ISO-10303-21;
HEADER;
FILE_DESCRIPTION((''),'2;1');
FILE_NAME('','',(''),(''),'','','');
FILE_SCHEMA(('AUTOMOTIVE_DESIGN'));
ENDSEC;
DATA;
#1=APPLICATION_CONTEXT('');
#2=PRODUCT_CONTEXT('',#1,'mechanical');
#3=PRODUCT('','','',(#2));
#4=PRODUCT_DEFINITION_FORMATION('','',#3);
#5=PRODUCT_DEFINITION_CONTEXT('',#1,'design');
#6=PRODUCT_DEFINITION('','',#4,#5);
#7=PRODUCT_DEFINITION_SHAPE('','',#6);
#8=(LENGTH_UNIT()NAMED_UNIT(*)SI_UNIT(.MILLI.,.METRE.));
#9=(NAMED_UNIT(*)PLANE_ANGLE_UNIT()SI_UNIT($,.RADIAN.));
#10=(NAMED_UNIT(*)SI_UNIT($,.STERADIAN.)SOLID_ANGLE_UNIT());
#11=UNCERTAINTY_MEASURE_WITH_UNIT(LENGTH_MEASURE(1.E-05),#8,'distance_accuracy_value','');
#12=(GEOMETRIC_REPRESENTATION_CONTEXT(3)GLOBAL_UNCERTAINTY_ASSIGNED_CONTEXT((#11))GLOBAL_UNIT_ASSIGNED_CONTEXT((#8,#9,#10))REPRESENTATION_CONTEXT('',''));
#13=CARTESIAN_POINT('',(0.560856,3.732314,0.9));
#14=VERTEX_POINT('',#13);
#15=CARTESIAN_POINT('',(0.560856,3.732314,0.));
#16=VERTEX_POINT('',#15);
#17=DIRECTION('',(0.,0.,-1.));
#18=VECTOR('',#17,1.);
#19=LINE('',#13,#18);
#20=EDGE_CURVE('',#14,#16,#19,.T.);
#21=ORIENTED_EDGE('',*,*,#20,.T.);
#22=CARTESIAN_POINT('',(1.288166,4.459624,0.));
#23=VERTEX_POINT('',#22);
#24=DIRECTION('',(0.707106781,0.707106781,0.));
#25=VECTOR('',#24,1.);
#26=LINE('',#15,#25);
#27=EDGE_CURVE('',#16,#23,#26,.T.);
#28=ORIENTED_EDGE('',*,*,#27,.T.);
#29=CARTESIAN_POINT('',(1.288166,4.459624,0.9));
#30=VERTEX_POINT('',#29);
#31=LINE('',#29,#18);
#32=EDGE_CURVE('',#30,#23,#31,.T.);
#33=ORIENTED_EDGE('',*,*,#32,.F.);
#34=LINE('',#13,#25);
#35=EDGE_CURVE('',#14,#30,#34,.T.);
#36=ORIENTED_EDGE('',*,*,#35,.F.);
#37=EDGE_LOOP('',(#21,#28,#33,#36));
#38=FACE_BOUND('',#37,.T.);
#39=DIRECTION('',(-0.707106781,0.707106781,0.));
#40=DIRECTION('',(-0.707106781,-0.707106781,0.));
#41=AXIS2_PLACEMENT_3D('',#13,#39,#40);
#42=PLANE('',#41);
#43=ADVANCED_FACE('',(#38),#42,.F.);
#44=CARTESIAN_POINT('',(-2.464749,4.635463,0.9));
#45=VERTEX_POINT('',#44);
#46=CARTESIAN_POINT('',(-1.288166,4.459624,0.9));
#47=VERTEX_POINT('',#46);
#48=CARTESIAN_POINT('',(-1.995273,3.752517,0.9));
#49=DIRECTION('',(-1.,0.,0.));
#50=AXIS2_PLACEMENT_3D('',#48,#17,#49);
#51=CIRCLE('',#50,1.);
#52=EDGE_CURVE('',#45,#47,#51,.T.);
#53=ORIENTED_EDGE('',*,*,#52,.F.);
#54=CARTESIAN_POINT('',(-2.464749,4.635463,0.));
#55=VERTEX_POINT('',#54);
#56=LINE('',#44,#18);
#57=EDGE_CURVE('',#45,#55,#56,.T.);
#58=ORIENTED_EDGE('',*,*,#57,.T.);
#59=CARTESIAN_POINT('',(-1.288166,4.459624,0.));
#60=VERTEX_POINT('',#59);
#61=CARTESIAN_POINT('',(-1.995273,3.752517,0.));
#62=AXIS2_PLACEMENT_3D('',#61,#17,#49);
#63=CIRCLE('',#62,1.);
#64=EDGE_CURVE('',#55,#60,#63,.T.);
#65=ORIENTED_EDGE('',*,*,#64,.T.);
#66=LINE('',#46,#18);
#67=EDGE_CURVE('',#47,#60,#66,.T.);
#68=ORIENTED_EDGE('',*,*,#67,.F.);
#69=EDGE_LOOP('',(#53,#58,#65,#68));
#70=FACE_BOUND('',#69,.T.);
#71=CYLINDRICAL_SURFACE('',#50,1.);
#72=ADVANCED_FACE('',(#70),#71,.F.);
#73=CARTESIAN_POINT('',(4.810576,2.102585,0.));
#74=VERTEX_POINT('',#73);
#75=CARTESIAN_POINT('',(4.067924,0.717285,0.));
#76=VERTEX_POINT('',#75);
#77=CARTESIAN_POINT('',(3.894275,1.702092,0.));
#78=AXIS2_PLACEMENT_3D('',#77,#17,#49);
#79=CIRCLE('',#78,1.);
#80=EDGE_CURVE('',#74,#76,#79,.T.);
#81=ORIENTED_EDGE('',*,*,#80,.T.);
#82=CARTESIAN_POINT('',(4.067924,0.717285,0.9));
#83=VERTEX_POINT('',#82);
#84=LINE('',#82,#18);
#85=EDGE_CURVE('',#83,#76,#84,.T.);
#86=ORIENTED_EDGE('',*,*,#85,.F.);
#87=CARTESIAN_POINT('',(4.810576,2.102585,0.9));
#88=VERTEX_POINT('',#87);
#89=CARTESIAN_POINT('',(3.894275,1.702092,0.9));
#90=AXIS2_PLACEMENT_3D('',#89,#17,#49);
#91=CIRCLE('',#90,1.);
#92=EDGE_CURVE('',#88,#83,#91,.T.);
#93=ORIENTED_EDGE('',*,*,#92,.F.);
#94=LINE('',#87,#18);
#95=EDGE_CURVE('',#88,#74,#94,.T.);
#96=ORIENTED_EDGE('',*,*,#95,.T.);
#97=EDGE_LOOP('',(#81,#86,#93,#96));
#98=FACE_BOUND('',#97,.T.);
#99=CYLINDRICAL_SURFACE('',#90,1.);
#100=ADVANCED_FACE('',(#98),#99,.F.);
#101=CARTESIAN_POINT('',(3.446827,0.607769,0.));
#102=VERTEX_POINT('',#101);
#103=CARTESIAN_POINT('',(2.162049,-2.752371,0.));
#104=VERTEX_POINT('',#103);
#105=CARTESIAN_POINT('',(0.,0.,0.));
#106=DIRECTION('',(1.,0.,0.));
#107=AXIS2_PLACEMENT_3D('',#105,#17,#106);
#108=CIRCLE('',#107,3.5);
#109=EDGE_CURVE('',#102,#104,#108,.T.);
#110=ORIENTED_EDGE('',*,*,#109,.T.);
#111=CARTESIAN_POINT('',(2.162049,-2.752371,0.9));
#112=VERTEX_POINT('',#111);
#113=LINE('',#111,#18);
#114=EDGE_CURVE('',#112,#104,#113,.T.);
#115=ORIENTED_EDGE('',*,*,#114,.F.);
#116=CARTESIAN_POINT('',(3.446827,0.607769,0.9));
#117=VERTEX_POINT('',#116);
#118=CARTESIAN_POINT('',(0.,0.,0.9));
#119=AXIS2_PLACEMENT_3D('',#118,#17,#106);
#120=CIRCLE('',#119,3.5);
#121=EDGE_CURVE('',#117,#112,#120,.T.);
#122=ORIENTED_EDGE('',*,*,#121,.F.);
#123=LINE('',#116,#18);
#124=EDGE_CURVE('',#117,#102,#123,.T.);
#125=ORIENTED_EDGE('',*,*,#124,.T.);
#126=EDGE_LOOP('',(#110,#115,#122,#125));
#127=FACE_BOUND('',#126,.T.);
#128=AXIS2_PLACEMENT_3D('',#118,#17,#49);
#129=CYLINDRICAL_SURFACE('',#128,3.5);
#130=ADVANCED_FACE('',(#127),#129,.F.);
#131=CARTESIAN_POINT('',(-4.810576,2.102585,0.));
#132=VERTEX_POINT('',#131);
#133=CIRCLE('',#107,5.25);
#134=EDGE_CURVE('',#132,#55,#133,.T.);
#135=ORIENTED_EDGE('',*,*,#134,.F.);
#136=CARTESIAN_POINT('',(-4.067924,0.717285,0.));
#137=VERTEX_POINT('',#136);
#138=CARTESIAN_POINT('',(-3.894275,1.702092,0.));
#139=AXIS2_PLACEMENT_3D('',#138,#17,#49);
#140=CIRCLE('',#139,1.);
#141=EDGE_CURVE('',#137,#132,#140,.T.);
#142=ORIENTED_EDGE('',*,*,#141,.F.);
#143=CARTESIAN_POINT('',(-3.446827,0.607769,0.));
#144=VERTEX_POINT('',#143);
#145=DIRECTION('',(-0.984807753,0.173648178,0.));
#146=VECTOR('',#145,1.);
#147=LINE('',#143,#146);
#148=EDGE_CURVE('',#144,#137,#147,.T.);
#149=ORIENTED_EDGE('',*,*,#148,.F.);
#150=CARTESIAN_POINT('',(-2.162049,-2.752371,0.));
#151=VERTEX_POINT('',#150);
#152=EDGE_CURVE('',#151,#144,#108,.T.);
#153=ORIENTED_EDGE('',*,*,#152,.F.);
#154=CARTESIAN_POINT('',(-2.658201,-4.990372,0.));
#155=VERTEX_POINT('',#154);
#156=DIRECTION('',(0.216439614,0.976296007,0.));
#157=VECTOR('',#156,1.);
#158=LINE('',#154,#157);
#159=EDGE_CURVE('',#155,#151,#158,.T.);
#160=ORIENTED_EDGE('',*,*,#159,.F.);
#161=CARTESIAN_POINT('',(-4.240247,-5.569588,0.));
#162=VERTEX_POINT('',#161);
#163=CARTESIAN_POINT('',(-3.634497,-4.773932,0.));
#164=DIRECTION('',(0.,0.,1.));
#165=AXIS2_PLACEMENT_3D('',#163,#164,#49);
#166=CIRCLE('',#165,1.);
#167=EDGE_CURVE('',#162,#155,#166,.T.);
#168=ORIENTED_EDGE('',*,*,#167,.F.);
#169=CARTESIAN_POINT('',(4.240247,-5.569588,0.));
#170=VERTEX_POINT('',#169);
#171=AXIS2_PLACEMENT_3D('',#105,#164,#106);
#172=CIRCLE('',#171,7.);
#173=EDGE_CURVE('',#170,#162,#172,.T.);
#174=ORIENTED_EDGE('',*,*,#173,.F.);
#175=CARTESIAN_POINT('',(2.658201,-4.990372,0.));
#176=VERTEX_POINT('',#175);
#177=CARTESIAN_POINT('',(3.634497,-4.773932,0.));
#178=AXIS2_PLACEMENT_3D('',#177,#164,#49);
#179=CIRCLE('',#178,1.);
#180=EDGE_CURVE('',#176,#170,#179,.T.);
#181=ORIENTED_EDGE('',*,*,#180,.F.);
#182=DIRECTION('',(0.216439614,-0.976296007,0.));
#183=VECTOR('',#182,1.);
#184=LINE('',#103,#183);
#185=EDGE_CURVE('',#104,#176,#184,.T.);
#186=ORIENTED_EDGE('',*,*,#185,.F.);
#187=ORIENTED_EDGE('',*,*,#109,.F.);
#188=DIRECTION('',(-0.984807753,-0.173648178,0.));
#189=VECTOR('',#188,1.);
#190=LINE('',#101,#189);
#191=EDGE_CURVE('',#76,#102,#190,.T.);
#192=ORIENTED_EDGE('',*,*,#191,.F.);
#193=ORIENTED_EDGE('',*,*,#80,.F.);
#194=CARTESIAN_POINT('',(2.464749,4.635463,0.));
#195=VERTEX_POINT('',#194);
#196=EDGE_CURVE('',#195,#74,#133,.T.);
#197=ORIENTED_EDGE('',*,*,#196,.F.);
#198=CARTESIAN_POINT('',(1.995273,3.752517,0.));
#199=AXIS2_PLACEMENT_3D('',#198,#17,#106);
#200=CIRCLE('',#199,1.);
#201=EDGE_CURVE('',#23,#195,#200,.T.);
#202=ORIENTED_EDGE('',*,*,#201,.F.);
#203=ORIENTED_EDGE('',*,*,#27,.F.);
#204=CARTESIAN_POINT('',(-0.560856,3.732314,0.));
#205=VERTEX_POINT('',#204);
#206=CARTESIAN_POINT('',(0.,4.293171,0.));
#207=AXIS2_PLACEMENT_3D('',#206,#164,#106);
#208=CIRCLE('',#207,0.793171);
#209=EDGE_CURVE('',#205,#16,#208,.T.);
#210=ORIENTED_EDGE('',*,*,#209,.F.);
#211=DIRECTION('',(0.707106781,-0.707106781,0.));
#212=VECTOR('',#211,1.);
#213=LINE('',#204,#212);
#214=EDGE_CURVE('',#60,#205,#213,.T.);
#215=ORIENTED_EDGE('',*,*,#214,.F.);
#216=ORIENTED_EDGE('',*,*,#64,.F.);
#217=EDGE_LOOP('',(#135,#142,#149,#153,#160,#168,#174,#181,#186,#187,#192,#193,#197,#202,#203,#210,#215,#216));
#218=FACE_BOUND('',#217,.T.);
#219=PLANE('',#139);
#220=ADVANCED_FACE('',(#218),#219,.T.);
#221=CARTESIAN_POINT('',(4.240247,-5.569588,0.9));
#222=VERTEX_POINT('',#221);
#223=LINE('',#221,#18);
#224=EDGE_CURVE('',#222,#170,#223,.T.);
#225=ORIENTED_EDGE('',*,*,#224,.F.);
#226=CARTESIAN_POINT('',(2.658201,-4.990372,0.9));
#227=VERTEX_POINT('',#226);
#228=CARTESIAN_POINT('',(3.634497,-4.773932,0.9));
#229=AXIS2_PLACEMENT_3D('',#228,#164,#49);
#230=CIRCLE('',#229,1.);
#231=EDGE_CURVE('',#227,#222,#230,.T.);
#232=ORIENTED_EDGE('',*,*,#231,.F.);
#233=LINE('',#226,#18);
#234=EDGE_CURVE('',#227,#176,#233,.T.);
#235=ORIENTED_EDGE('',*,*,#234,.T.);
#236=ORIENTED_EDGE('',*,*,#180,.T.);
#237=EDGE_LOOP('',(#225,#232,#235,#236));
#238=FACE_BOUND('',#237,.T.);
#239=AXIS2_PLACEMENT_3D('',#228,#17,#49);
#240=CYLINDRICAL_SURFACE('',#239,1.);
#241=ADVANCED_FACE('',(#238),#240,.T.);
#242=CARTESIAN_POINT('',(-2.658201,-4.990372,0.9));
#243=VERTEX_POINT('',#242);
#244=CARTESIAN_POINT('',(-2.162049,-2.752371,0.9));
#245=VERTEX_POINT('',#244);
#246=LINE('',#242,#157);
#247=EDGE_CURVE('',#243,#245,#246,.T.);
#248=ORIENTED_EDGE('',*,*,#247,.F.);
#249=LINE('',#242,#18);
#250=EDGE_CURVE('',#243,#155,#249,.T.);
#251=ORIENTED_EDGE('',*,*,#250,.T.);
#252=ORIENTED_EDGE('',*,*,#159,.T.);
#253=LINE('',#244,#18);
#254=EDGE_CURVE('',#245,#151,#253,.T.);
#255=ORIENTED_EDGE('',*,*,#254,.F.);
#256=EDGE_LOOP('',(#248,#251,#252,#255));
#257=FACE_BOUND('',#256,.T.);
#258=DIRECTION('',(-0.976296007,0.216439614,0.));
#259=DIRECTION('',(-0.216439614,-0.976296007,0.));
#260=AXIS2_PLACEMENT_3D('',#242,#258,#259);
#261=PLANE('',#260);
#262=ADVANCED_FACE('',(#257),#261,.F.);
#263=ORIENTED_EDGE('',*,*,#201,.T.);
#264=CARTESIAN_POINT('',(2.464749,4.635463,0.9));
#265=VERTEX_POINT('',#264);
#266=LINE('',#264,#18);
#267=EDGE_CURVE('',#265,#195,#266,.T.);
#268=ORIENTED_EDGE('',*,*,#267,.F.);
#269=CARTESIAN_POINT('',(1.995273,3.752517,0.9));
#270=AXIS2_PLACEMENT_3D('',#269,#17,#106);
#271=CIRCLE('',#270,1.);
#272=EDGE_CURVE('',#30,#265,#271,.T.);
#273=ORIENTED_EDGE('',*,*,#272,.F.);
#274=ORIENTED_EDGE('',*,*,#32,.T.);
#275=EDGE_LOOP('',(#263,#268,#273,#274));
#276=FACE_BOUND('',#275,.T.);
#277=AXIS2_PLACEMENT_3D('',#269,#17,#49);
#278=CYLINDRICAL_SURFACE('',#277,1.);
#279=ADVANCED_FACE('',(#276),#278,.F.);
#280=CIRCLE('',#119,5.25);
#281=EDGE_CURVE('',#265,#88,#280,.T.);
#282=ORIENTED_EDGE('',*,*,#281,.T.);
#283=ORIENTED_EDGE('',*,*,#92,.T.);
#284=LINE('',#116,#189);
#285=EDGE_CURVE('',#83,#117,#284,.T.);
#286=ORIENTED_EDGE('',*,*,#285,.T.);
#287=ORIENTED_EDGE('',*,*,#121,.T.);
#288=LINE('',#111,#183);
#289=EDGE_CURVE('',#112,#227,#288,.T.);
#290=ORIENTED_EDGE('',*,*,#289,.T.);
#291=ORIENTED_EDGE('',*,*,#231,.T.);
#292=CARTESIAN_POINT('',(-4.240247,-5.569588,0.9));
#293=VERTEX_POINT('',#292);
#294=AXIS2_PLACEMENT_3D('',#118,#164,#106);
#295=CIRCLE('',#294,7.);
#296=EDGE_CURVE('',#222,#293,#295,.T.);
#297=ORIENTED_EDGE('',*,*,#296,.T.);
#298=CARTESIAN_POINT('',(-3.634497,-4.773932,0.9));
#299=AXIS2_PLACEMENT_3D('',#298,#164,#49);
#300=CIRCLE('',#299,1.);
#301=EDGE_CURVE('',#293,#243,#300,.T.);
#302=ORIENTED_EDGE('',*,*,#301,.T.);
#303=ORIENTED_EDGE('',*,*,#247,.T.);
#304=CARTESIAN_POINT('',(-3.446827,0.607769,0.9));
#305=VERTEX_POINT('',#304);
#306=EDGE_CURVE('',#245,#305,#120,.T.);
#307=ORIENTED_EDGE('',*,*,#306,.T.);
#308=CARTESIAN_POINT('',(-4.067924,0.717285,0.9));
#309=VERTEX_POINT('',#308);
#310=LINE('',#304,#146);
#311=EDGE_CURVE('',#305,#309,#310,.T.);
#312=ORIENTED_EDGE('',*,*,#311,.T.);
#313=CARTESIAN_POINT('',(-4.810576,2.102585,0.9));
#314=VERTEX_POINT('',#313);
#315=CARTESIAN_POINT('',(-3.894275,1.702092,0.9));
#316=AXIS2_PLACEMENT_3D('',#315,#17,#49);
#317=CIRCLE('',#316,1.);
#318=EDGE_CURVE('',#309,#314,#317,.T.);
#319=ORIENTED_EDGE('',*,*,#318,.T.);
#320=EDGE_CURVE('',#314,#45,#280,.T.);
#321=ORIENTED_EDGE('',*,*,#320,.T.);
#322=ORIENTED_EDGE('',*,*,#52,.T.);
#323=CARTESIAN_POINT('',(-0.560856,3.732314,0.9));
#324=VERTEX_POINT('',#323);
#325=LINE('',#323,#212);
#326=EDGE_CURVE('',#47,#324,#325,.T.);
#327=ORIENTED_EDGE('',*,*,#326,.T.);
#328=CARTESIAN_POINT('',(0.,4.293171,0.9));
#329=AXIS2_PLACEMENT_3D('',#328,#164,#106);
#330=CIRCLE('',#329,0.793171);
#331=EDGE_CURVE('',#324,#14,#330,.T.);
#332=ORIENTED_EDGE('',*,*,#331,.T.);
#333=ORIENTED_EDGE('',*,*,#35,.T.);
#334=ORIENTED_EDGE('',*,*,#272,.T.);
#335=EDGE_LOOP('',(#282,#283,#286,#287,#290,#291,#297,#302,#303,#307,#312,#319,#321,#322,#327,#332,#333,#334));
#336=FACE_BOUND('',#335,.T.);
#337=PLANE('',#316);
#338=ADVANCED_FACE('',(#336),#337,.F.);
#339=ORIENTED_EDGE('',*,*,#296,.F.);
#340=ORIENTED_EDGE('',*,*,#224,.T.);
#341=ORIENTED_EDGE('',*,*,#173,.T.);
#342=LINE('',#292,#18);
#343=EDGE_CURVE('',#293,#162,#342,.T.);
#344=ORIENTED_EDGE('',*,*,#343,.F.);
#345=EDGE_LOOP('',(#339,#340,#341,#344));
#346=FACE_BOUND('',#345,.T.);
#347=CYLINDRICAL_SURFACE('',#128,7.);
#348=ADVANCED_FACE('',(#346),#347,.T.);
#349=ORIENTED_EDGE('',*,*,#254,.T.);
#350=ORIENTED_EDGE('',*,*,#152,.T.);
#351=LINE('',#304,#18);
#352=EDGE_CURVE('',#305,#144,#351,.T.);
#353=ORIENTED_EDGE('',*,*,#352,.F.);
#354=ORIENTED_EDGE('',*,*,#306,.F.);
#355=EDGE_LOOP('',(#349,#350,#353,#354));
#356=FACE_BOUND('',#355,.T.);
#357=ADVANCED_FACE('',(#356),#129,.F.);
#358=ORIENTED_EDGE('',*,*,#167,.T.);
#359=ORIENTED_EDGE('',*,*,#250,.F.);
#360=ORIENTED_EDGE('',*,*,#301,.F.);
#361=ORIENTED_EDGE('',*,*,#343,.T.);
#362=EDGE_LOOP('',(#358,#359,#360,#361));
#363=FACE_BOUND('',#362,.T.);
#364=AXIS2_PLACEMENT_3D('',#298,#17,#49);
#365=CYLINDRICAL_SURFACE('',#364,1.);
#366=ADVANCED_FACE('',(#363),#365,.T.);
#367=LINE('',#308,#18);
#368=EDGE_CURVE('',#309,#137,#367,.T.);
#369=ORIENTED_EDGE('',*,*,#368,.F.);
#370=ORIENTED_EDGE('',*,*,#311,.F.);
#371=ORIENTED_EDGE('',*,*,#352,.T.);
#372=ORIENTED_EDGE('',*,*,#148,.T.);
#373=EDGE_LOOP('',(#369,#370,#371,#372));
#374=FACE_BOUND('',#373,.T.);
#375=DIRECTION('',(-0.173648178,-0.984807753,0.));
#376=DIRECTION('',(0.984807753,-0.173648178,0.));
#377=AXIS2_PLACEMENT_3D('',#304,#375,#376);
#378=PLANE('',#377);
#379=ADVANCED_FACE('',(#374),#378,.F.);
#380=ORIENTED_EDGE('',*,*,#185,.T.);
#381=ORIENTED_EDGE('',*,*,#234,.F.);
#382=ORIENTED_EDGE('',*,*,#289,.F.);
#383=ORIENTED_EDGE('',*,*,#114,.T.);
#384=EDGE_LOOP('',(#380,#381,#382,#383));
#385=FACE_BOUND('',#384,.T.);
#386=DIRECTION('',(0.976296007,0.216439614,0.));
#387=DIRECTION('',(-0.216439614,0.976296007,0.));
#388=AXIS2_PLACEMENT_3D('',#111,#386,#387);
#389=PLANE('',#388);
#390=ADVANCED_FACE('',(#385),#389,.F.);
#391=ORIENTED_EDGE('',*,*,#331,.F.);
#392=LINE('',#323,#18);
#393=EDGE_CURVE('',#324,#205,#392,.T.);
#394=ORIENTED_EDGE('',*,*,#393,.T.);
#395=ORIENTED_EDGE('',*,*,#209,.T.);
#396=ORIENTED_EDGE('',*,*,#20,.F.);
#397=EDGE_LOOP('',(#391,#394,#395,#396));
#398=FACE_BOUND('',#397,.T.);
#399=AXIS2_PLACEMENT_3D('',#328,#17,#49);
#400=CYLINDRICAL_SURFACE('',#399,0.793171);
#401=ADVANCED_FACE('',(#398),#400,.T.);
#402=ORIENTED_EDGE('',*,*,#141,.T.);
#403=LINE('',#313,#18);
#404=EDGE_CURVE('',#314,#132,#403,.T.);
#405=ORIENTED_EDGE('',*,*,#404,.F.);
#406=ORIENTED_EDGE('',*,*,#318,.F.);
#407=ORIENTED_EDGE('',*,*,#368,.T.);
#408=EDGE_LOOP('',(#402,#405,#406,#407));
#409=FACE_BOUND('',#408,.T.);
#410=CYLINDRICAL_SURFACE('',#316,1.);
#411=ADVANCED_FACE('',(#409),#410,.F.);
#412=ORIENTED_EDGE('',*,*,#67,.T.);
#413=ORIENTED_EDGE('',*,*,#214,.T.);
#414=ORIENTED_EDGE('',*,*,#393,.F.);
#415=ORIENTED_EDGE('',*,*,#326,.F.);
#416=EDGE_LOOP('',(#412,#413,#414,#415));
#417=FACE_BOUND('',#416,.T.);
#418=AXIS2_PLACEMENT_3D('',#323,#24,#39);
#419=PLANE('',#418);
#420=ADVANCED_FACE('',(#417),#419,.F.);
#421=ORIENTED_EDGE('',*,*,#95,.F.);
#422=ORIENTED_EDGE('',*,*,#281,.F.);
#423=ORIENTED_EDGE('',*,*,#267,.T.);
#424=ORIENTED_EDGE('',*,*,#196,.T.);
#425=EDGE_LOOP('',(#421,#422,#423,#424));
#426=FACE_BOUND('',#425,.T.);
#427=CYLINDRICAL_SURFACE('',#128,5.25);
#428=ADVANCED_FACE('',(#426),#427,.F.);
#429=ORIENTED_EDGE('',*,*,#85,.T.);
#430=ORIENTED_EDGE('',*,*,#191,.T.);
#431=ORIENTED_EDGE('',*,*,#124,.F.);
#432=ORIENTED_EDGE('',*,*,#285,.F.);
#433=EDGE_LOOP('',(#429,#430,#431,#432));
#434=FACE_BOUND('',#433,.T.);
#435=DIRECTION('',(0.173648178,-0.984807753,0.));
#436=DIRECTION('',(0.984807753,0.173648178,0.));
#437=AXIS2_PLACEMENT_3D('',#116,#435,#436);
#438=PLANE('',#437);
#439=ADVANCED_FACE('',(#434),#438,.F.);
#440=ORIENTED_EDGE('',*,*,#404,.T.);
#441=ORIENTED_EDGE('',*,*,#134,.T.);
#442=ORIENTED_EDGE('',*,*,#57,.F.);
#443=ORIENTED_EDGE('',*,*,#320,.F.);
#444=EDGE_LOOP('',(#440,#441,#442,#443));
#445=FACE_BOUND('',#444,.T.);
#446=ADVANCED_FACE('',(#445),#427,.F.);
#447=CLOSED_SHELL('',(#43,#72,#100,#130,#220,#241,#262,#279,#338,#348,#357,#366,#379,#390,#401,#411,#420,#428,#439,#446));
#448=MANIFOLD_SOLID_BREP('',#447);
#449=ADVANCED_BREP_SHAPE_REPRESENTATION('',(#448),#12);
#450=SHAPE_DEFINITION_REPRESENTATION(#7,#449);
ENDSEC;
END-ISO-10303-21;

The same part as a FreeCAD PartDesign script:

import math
import FreeCAD as App
import Part
import Sketcher

V = App.Vector
Q = App.Units.Quantity

doc = App.newDocument("Part")
body = doc.addObject("PartDesign::Body", "Body")

# Sketch on XY plane
sketch1 = body.newObject("Sketcher::SketchObject", "Sketch")
sketch1.AttachmentSupport = (doc.getObject("XY_Plane"), [""])
sketch1.MapMode = "FlatFace"
sketch1.addGeometry([
    Part.LineSegment(V(0.6, 3.7, 0), V(1.3, 4.5, 0)),  # 0
    Part.ArcOfCircle(Part.Circle(V(2, 3.8, 0), V(0, 0, 1), 1), math.radians(62), math.radians(135)),  # 1
    Part.ArcOfCircle(Part.Circle(V(0, 0, 0), V(0, 0, 1), 5.2), math.radians(24), math.radians(62)),  # 2
    Part.ArcOfCircle(Part.Circle(V(3.9, 1.7, 0), V(0, 0, 1), 1), math.radians(-80), math.radians(24)),  # 3
    Part.LineSegment(V(4.1, 0.7, 0), V(3.4, 0.6, 0)),  # 4
    Part.ArcOfCircle(Part.Circle(V(0, 0, 0), V(0, 0, 1), 3.5), math.radians(-52), math.radians(10)),  # 5
    Part.LineSegment(V(2.2, -2.8, 0), V(2.7, -5, 0)),  # 6
    Part.ArcOfCircle(Part.Circle(V(3.6, -4.8, 0), V(0, 0, 1), 1), math.radians(-167), math.radians(-53)),  # 7
    Part.ArcOfCircle(Part.Circle(V(0, 0, 0), V(0, 0, 1), 7), math.radians(-53), math.radians(233)),  # 8
    Part.ArcOfCircle(Part.Circle(V(-3.6, -4.8, 0), V(0, 0, 1), 1), math.radians(-127), math.radians(-13)),  # 9
    Part.LineSegment(V(-2.7, -5, 0), V(-2.2, -2.8, 0)),  # 10
    Part.ArcOfCircle(Part.Circle(V(0, 0, 0), V(0, 0, 1), 3.5), math.radians(170), math.radians(232)),  # 11
    Part.LineSegment(V(-3.4, 0.6, 0), V(-4.1, 0.7, 0)),  # 12
    Part.ArcOfCircle(Part.Circle(V(-3.9, 1.7, 0), V(0, 0, 1), 1), math.radians(156), math.radians(260)),  # 13
    Part.ArcOfCircle(Part.Circle(V(0, 0, 0), V(0, 0, 1), 5.2), math.radians(118), math.radians(156)),  # 14
    Part.ArcOfCircle(Part.Circle(V(-2, 3.8, 0), V(0, 0, 1), 1), math.radians(45), math.radians(118)),  # 15
    Part.LineSegment(V(-1.3, 4.5, 0), V(-0.6, 3.7, 0)),  # 16
    Part.ArcOfCircle(Part.Circle(V(0, 4.3, 0), V(0, 0, 1), 0.8), math.radians(-135), math.radians(-45)),  # 17
], False)
sketch1.addConstraint([
    Sketcher.Constraint("Tangent", 0, 2, 1, 2),
    Sketcher.Constraint("Tangent", 1, 1, 2, 2),
    Sketcher.Constraint("Tangent", 2, 1, 3, 2),
    Sketcher.Constraint("Tangent", 3, 1, 4, 1),
    Sketcher.Constraint("Coincident", 4, 2, 5, 2),
    Sketcher.Constraint("Coincident", 5, 1, 6, 1),
    Sketcher.Constraint("Tangent", 6, 2, 7, 1),
    Sketcher.Constraint("Tangent", 7, 2, 8, 1),
    Sketcher.Constraint("Tangent", 8, 2, 9, 1),
    Sketcher.Constraint("Tangent", 9, 2, 10, 1),
    Sketcher.Constraint("Coincident", 10, 2, 11, 2),
    Sketcher.Constraint("Coincident", 11, 1, 12, 1),
    Sketcher.Constraint("Tangent", 12, 2, 13, 2),
    Sketcher.Constraint("Tangent", 13, 1, 14, 2),
    Sketcher.Constraint("Tangent", 14, 1, 15, 2),
    Sketcher.Constraint("Tangent", 15, 1, 16, 1),
    Sketcher.Constraint("Tangent", 16, 2, 17, 1),
    Sketcher.Constraint("Tangent", 17, 2, 0, 1),
    Sketcher.Constraint("Coincident", 2, 3, -1, 1),
    Sketcher.Constraint("Coincident", 5, 3, -1, 1),
    Sketcher.Constraint("Coincident", 8, 3, -1, 1),
    Sketcher.Constraint("Coincident", 11, 3, -1, 1),
    Sketcher.Constraint("Coincident", 14, 3, -1, 1),
    Sketcher.Constraint("Equal", 1, 3),
    Sketcher.Constraint("Equal", 3, 7),
    Sketcher.Constraint("Equal", 7, 9),
    Sketcher.Constraint("Equal", 5, 11),
    Sketcher.Constraint("Equal", 9, 13),
    Sketcher.Constraint("Equal", 2, 14),
    Sketcher.Constraint("Equal", 13, 15),
    Sketcher.Constraint("Symmetric", 6, 2, 9, 2, -2),
    Sketcher.Constraint("Symmetric", 3, 1, 12, 2, -2),
    Sketcher.Constraint("Symmetric", 0, 2, 15, 1, -2),
    Sketcher.Constraint("Perpendicular", 0, 16),
    Sketcher.Constraint("Radius", 1, Q("1 mm")),
    Sketcher.Constraint("Radius", 8, Q("7 mm")),
    Sketcher.Constraint("Radius", 5, Q("3.5 mm")),
    Sketcher.Constraint("Angle", 4, Q("-170 deg")),
    Sketcher.Constraint("Radius", 2, Q("5.25 mm")),
    Sketcher.Constraint("Angle", 6, Q("-77.5 deg")),
    Sketcher.Constraint("Radius", 17, Q("0.793171 mm")),
    Sketcher.Constraint("DistanceY", 6, 2, 5, 1, Q("2.238001 mm")),
    Sketcher.Constraint("DistanceX", 3, 3, 2, 1, Q("0.9163 mm")),
    Sketcher.Constraint("Distance", 0, Q("1.028571 mm")),
])
pad1 = body.newObject("PartDesign::Pad", "Pad")
pad1.Profile = sketch1
pad1.Length = 0.9

doc.recompute()
